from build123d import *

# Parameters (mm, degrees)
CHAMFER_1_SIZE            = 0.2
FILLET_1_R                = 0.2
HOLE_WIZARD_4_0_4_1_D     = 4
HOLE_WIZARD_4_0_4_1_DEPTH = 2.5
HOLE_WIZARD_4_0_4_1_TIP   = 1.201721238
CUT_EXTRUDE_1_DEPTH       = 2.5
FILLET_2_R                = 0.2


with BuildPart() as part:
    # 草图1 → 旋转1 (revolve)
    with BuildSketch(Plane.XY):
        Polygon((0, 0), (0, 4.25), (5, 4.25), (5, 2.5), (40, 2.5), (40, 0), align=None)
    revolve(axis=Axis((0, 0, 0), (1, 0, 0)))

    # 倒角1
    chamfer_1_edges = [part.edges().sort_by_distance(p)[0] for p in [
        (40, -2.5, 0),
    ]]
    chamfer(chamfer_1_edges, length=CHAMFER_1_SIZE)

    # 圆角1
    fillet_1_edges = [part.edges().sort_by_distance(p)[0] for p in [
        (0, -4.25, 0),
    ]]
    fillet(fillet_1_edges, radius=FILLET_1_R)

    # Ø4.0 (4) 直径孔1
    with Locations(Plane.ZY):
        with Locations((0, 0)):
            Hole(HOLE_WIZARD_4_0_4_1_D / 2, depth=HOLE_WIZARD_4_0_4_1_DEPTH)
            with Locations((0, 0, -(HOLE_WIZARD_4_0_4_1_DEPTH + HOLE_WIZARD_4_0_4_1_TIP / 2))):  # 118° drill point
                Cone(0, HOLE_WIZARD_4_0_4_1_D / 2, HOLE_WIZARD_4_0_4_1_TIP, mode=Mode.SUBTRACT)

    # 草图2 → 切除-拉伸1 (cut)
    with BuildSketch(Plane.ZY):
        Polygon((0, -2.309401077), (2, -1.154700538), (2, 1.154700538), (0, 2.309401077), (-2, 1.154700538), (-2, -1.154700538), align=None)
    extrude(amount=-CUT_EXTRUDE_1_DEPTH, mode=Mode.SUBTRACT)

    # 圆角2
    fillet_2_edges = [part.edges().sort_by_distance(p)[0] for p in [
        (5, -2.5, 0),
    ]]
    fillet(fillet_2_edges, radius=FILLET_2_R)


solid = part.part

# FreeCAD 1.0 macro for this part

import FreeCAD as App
import Part
import Sketcher
from FreeCAD import Vector
Q = App.Units.Quantity


def edges_at(feature, points):
    """Names of the edges that pass closest to the given points."""
    edges = feature.Shape.Edges
    near = lambda p: min(range(len(edges)), key=lambda i: edges[i].distToShape(Part.Vertex(*p))[0])
    return sorted({f"Edge{near(p) + 1}" for p in points})

doc = App.newDocument("Part")
body = doc.addObject("PartDesign::Body", "Body")

sketch1 = body.newObject("Sketcher::SketchObject", "Sketch")
sketch1.AttachmentSupport = (doc.getObject("XY_Plane"), [""])
sketch1.MapMode = "FlatFace"
sketch1.addGeometry(Part.LineSegment(Vector(0, 4.25, 0), Vector(0, 0, 0)), False)
sketch1.addGeometry(Part.LineSegment(Vector(0, 0, 0), Vector(40, 0, 0)), False)
sketch1.addGeometry(Part.LineSegment(Vector(40, 0, 0), Vector(40, 2.5, 0)), False)
sketch1.addGeometry(Part.LineSegment(Vector(40, 2.5, 0), Vector(5, 2.5, 0)), False)
sketch1.addGeometry(Part.LineSegment(Vector(5, 2.5, 0), Vector(5, 4.25, 0)), False)
sketch1.addGeometry(Part.LineSegment(Vector(5, 4.25, 0), Vector(0, 4.25, 0)), False)
sketch1.addConstraint(Sketcher.Constraint("Coincident", 0, 2, 1, 1))
sketch1.addConstraint(Sketcher.Constraint("Coincident", 1, 2, 2, 1))
sketch1.addConstraint(Sketcher.Constraint("Coincident", 2, 2, 3, 1))
sketch1.addConstraint(Sketcher.Constraint("Coincident", 3, 2, 4, 1))
sketch1.addConstraint(Sketcher.Constraint("Coincident", 4, 2, 5, 1))
sketch1.addConstraint(Sketcher.Constraint("Coincident", 5, 2, 0, 1))
sketch1.addConstraint(Sketcher.Constraint("Vertical", 0))
sketch1.addConstraint(Sketcher.Constraint("Horizontal", 1))
sketch1.addConstraint(Sketcher.Constraint("Vertical", 2))
sketch1.addConstraint(Sketcher.Constraint("Horizontal", 3))
sketch1.addConstraint(Sketcher.Constraint("Vertical", 4))
sketch1.addConstraint(Sketcher.Constraint("Horizontal", 5))
sketch1.addConstraint(Sketcher.Constraint("Coincident", 0, 2, -1, 1))
sketch1.addConstraint(Sketcher.Constraint("DistanceX", 1, 1, 1, 2, Q("40 mm")))
sketch1.addConstraint(Sketcher.Constraint("DistanceX", 3, 2, 3, 1, Q("35 mm")))
sketch1.addConstraint(Sketcher.Constraint("DistanceY", 2, 1, 2, 2, Q("2.5 mm")))
sketch1.addConstraint(Sketcher.Constraint("DistanceY", 0, 2, 0, 1, Q("4.25 mm")))
revolution = body.newObject("PartDesign::Revolution", "Revolution")
revolution.Profile = sketch1
revolution.ReferenceAxis = (sketch1, ["H_Axis"])
revolution.Angle = 360
doc.recompute()

chamfer = body.newObject("PartDesign::Chamfer", "Chamfer")
chamfer.Base = (revolution, edges_at(revolution, [(40, -2.5, 0)]))
chamfer.Size = 0.2
doc.recompute()

fillet = body.newObject("PartDesign::Fillet", "Fillet")
fillet.Base = (chamfer, edges_at(chamfer, [(0, -4.25, 0)]))
fillet.Radius = 0.2

sketch2 = body.newObject("Sketcher::SketchObject", "Sketch001")
sketch2.AttachmentSupport = (doc.getObject("YZ_Plane"), [""])
sketch2.MapMode = "FlatFace"
sketch2.addGeometry(Part.Circle(Vector(0, 0, 0), Vector(0, 0, 1), 2), False)
sketch2.addConstraint(Sketcher.Constraint("Coincident", 0, 3, -1, 1))
sketch2.addConstraint(Sketcher.Constraint("Diameter", 0, Q("4 mm")))
doc.recompute()
hole = body.newObject("PartDesign::Hole", "Hole")
hole.Profile = sketch2
hole.ThreadType = "None"
hole.Diameter = 4
hole.DepthType = "Dimension"
hole.Depth = 2.5
hole.DrillPoint = "Angled"
hole.DrillPointAngle = 118
hole.Reversed = True

sketch3 = body.newObject("Sketcher::SketchObject", "Sketch002")
sketch3.AttachmentSupport = (doc.getObject("YZ_Plane"), [""])
sketch3.MapMode = "FlatFace"
sketch3.addGeometry(Part.LineSegment(Vector(-2.309401, 0, 0), Vector(-1.154701, 2, 0)), False)
sketch3.addGeometry(Part.LineSegment(Vector(-1.154701, 2, 0), Vector(1.154701, 2, 0)), False)
sketch3.addGeometry(Part.LineSegment(Vector(1.154701, 2, 0), Vector(2.309401, 0, 0)), False)
sketch3.addGeometry(Part.LineSegment(Vector(2.309401, 0, 0), Vector(1.154701, -2, 0)), False)
sketch3.addGeometry(Part.LineSegment(Vector(1.154701, -2, 0), Vector(-1.154701, -2, 0)), False)
sketch3.addGeometry(Part.LineSegment(Vector(-1.154701, -2, 0), Vector(-2.309401, 0, 0)), False)
sketch3.addConstraint(Sketcher.Constraint("Coincident", 0, 2, 1, 1))
sketch3.addConstraint(Sketcher.Constraint("Coincident", 1, 2, 2, 1))
sketch3.addConstraint(Sketcher.Constraint("Coincident", 2, 2, 3, 1))
sketch3.addConstraint(Sketcher.Constraint("Coincident", 3, 2, 4, 1))
sketch3.addConstraint(Sketcher.Constraint("Coincident", 4, 2, 5, 1))
sketch3.addConstraint(Sketcher.Constraint("Coincident", 5, 2, 0, 1))
sketch3.addConstraint(Sketcher.Constraint("Horizontal", 1))
sketch3.addConstraint(Sketcher.Constraint("Horizontal", 4))
sketch3.addConstraint(Sketcher.Constraint("Symmetric", 0, 2, 3, 2, -1, 1))
sketch3.addConstraint(Sketcher.Constraint("Symmetric", 2, 2, 5, 2, -1, 1))
sketch3.addConstraint(Sketcher.Constraint("PointOnObject", 2, 2, -1))
sketch3.addConstraint(Sketcher.Constraint("Parallel", 2, 5))
sketch3.addConstraint(Sketcher.Constraint("Vertical", 1, 2, 3, 2))
sketch3.addConstraint(Sketcher.Constraint("Angle", 0, Q("60 deg")))
sketch3.addConstraint(Sketcher.Constraint("DistanceY", -1, 1, 0, 2, Q("2 mm")))
sketch3.addConstraint(Sketcher.Constraint("DistanceX", 1, 1, 1, 2, Q("2.309401 mm")))
pocket1 = body.newObject("PartDesign::Pocket", "Pocket")
pocket1.Profile = sketch3
pocket1.Length = 2.5
pocket1.Reversed = True
doc.recompute()

fillet2 = body.newObject("PartDesign::Fillet", "Fillet001")
fillet2.Base = (pocket1, edges_at(pocket1, [(5, -2.5, 0)]))
fillet2.Radius = 0.2

doc.recompute()
